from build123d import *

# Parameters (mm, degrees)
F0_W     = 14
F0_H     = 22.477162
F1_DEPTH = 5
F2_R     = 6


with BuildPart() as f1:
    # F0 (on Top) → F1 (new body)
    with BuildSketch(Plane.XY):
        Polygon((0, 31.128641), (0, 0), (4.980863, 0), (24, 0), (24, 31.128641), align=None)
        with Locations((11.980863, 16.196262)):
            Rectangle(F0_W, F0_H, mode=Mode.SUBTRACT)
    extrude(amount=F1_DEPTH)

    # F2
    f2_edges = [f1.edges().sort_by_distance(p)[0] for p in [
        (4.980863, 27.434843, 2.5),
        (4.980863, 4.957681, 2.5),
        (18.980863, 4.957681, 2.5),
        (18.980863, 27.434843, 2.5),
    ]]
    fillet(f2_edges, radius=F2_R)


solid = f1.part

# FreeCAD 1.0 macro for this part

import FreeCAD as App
import Part
import Sketcher
from FreeCAD import Vector
Q = App.Units.Quantity


def edges_at(feature, points):
    """Names of the edges that pass closest to the given points."""
    edges = feature.Shape.Edges
    near = lambda p: min(range(len(edges)), key=lambda i: edges[i].distToShape(Part.Vertex(*p))[0])
    return sorted({f"Edge{near(p) + 1}" for p in points})


def add_polygon(sketch, points):
    """Adds a closed chain of lines whose ends are joined by coincident constraints."""
    first, n = sketch.GeometryCount, len(points)
    for a, b in zip(points, points[1:] + points[:1]):
        sketch.addGeometry(Part.LineSegment(App.Vector(*a, 0), App.Vector(*b, 0)), False)
    for i in range(n):
        sketch.addConstraint(Sketcher.Constraint("Coincident", first + i, 2, first + (i + 1) % n, 1))

doc = App.newDocument("Part")
body = doc.addObject("PartDesign::Body", "Body")

# Sketch on XY plane
sketch1 = body.newObject("Sketcher::SketchObject", "Sketch")
sketch1.AttachmentSupport = (doc.getObject("XY_Plane"), [""])
sketch1.MapMode = "FlatFace"
add_polygon(sketch1, [(0, 31.128641), (0, 0), (24, 0), (24, 31.128641)])  # lines 0-3
add_polygon(sketch1, [(18.980863, 4.957681), (4.980863, 4.957681), (4.980863, 27.434843), (18.980863, 27.434843)])  # lines 4-7
sketch1.addConstraint(Sketcher.Constraint("Vertical", 0))
sketch1.addConstraint(Sketcher.Constraint("Horizontal", 1))
sketch1.addConstraint(Sketcher.Constraint("Vertical", 2))
sketch1.addConstraint(Sketcher.Constraint("Horizontal", 3))
sketch1.addConstraint(Sketcher.Constraint("Horizontal", 4))
sketch1.addConstraint(Sketcher.Constraint("Vertical", 5))
sketch1.addConstraint(Sketcher.Constraint("Horizontal", 6))
sketch1.addConstraint(Sketcher.Constraint("Vertical", 7))
sketch1.addConstraint(Sketcher.Constraint("Coincident", 0, 2, -1, 1))
sketch1.addConstraint(Sketcher.Constraint("DistanceX", 1, 1, 1, 2, Q("24 mm")))
sketch1.addConstraint(Sketcher.Constraint("DistanceX", 4, 2, 4, 1, Q("14 mm")))
sketch1.addConstraint(Sketcher.Constraint("DistanceY", 0, 2, 0, 1, Q("31.128641 mm")))
sketch1.addConstraint(Sketcher.Constraint("DistanceY", 5, 1, 5, 2, Q("22.477162 mm")))
sketch1.addConstraint(Sketcher.Constraint("DistanceY", -1, 1, 4, 2, Q("4.957681 mm")))
sketch1.addConstraint(Sketcher.Constraint("DistanceX", -1, 1, 4, 2, Q("4.980863 mm")))
pad1 = body.newObject("PartDesign::Pad", "Pad")
pad1.Profile = sketch1
pad1.Length = 5
doc.recompute()

fillet = body.newObject("PartDesign::Fillet", "Fillet")
fillet.Base = (pad1, edges_at(pad1, [
    (4.981, 27.435, 2.5),
    (4.981, 4.958, 2.5),
    (18.981, 4.958, 2.5),
    (18.981, 27.435, 2.5),
]))
fillet.Radius = 6

doc.recompute()
